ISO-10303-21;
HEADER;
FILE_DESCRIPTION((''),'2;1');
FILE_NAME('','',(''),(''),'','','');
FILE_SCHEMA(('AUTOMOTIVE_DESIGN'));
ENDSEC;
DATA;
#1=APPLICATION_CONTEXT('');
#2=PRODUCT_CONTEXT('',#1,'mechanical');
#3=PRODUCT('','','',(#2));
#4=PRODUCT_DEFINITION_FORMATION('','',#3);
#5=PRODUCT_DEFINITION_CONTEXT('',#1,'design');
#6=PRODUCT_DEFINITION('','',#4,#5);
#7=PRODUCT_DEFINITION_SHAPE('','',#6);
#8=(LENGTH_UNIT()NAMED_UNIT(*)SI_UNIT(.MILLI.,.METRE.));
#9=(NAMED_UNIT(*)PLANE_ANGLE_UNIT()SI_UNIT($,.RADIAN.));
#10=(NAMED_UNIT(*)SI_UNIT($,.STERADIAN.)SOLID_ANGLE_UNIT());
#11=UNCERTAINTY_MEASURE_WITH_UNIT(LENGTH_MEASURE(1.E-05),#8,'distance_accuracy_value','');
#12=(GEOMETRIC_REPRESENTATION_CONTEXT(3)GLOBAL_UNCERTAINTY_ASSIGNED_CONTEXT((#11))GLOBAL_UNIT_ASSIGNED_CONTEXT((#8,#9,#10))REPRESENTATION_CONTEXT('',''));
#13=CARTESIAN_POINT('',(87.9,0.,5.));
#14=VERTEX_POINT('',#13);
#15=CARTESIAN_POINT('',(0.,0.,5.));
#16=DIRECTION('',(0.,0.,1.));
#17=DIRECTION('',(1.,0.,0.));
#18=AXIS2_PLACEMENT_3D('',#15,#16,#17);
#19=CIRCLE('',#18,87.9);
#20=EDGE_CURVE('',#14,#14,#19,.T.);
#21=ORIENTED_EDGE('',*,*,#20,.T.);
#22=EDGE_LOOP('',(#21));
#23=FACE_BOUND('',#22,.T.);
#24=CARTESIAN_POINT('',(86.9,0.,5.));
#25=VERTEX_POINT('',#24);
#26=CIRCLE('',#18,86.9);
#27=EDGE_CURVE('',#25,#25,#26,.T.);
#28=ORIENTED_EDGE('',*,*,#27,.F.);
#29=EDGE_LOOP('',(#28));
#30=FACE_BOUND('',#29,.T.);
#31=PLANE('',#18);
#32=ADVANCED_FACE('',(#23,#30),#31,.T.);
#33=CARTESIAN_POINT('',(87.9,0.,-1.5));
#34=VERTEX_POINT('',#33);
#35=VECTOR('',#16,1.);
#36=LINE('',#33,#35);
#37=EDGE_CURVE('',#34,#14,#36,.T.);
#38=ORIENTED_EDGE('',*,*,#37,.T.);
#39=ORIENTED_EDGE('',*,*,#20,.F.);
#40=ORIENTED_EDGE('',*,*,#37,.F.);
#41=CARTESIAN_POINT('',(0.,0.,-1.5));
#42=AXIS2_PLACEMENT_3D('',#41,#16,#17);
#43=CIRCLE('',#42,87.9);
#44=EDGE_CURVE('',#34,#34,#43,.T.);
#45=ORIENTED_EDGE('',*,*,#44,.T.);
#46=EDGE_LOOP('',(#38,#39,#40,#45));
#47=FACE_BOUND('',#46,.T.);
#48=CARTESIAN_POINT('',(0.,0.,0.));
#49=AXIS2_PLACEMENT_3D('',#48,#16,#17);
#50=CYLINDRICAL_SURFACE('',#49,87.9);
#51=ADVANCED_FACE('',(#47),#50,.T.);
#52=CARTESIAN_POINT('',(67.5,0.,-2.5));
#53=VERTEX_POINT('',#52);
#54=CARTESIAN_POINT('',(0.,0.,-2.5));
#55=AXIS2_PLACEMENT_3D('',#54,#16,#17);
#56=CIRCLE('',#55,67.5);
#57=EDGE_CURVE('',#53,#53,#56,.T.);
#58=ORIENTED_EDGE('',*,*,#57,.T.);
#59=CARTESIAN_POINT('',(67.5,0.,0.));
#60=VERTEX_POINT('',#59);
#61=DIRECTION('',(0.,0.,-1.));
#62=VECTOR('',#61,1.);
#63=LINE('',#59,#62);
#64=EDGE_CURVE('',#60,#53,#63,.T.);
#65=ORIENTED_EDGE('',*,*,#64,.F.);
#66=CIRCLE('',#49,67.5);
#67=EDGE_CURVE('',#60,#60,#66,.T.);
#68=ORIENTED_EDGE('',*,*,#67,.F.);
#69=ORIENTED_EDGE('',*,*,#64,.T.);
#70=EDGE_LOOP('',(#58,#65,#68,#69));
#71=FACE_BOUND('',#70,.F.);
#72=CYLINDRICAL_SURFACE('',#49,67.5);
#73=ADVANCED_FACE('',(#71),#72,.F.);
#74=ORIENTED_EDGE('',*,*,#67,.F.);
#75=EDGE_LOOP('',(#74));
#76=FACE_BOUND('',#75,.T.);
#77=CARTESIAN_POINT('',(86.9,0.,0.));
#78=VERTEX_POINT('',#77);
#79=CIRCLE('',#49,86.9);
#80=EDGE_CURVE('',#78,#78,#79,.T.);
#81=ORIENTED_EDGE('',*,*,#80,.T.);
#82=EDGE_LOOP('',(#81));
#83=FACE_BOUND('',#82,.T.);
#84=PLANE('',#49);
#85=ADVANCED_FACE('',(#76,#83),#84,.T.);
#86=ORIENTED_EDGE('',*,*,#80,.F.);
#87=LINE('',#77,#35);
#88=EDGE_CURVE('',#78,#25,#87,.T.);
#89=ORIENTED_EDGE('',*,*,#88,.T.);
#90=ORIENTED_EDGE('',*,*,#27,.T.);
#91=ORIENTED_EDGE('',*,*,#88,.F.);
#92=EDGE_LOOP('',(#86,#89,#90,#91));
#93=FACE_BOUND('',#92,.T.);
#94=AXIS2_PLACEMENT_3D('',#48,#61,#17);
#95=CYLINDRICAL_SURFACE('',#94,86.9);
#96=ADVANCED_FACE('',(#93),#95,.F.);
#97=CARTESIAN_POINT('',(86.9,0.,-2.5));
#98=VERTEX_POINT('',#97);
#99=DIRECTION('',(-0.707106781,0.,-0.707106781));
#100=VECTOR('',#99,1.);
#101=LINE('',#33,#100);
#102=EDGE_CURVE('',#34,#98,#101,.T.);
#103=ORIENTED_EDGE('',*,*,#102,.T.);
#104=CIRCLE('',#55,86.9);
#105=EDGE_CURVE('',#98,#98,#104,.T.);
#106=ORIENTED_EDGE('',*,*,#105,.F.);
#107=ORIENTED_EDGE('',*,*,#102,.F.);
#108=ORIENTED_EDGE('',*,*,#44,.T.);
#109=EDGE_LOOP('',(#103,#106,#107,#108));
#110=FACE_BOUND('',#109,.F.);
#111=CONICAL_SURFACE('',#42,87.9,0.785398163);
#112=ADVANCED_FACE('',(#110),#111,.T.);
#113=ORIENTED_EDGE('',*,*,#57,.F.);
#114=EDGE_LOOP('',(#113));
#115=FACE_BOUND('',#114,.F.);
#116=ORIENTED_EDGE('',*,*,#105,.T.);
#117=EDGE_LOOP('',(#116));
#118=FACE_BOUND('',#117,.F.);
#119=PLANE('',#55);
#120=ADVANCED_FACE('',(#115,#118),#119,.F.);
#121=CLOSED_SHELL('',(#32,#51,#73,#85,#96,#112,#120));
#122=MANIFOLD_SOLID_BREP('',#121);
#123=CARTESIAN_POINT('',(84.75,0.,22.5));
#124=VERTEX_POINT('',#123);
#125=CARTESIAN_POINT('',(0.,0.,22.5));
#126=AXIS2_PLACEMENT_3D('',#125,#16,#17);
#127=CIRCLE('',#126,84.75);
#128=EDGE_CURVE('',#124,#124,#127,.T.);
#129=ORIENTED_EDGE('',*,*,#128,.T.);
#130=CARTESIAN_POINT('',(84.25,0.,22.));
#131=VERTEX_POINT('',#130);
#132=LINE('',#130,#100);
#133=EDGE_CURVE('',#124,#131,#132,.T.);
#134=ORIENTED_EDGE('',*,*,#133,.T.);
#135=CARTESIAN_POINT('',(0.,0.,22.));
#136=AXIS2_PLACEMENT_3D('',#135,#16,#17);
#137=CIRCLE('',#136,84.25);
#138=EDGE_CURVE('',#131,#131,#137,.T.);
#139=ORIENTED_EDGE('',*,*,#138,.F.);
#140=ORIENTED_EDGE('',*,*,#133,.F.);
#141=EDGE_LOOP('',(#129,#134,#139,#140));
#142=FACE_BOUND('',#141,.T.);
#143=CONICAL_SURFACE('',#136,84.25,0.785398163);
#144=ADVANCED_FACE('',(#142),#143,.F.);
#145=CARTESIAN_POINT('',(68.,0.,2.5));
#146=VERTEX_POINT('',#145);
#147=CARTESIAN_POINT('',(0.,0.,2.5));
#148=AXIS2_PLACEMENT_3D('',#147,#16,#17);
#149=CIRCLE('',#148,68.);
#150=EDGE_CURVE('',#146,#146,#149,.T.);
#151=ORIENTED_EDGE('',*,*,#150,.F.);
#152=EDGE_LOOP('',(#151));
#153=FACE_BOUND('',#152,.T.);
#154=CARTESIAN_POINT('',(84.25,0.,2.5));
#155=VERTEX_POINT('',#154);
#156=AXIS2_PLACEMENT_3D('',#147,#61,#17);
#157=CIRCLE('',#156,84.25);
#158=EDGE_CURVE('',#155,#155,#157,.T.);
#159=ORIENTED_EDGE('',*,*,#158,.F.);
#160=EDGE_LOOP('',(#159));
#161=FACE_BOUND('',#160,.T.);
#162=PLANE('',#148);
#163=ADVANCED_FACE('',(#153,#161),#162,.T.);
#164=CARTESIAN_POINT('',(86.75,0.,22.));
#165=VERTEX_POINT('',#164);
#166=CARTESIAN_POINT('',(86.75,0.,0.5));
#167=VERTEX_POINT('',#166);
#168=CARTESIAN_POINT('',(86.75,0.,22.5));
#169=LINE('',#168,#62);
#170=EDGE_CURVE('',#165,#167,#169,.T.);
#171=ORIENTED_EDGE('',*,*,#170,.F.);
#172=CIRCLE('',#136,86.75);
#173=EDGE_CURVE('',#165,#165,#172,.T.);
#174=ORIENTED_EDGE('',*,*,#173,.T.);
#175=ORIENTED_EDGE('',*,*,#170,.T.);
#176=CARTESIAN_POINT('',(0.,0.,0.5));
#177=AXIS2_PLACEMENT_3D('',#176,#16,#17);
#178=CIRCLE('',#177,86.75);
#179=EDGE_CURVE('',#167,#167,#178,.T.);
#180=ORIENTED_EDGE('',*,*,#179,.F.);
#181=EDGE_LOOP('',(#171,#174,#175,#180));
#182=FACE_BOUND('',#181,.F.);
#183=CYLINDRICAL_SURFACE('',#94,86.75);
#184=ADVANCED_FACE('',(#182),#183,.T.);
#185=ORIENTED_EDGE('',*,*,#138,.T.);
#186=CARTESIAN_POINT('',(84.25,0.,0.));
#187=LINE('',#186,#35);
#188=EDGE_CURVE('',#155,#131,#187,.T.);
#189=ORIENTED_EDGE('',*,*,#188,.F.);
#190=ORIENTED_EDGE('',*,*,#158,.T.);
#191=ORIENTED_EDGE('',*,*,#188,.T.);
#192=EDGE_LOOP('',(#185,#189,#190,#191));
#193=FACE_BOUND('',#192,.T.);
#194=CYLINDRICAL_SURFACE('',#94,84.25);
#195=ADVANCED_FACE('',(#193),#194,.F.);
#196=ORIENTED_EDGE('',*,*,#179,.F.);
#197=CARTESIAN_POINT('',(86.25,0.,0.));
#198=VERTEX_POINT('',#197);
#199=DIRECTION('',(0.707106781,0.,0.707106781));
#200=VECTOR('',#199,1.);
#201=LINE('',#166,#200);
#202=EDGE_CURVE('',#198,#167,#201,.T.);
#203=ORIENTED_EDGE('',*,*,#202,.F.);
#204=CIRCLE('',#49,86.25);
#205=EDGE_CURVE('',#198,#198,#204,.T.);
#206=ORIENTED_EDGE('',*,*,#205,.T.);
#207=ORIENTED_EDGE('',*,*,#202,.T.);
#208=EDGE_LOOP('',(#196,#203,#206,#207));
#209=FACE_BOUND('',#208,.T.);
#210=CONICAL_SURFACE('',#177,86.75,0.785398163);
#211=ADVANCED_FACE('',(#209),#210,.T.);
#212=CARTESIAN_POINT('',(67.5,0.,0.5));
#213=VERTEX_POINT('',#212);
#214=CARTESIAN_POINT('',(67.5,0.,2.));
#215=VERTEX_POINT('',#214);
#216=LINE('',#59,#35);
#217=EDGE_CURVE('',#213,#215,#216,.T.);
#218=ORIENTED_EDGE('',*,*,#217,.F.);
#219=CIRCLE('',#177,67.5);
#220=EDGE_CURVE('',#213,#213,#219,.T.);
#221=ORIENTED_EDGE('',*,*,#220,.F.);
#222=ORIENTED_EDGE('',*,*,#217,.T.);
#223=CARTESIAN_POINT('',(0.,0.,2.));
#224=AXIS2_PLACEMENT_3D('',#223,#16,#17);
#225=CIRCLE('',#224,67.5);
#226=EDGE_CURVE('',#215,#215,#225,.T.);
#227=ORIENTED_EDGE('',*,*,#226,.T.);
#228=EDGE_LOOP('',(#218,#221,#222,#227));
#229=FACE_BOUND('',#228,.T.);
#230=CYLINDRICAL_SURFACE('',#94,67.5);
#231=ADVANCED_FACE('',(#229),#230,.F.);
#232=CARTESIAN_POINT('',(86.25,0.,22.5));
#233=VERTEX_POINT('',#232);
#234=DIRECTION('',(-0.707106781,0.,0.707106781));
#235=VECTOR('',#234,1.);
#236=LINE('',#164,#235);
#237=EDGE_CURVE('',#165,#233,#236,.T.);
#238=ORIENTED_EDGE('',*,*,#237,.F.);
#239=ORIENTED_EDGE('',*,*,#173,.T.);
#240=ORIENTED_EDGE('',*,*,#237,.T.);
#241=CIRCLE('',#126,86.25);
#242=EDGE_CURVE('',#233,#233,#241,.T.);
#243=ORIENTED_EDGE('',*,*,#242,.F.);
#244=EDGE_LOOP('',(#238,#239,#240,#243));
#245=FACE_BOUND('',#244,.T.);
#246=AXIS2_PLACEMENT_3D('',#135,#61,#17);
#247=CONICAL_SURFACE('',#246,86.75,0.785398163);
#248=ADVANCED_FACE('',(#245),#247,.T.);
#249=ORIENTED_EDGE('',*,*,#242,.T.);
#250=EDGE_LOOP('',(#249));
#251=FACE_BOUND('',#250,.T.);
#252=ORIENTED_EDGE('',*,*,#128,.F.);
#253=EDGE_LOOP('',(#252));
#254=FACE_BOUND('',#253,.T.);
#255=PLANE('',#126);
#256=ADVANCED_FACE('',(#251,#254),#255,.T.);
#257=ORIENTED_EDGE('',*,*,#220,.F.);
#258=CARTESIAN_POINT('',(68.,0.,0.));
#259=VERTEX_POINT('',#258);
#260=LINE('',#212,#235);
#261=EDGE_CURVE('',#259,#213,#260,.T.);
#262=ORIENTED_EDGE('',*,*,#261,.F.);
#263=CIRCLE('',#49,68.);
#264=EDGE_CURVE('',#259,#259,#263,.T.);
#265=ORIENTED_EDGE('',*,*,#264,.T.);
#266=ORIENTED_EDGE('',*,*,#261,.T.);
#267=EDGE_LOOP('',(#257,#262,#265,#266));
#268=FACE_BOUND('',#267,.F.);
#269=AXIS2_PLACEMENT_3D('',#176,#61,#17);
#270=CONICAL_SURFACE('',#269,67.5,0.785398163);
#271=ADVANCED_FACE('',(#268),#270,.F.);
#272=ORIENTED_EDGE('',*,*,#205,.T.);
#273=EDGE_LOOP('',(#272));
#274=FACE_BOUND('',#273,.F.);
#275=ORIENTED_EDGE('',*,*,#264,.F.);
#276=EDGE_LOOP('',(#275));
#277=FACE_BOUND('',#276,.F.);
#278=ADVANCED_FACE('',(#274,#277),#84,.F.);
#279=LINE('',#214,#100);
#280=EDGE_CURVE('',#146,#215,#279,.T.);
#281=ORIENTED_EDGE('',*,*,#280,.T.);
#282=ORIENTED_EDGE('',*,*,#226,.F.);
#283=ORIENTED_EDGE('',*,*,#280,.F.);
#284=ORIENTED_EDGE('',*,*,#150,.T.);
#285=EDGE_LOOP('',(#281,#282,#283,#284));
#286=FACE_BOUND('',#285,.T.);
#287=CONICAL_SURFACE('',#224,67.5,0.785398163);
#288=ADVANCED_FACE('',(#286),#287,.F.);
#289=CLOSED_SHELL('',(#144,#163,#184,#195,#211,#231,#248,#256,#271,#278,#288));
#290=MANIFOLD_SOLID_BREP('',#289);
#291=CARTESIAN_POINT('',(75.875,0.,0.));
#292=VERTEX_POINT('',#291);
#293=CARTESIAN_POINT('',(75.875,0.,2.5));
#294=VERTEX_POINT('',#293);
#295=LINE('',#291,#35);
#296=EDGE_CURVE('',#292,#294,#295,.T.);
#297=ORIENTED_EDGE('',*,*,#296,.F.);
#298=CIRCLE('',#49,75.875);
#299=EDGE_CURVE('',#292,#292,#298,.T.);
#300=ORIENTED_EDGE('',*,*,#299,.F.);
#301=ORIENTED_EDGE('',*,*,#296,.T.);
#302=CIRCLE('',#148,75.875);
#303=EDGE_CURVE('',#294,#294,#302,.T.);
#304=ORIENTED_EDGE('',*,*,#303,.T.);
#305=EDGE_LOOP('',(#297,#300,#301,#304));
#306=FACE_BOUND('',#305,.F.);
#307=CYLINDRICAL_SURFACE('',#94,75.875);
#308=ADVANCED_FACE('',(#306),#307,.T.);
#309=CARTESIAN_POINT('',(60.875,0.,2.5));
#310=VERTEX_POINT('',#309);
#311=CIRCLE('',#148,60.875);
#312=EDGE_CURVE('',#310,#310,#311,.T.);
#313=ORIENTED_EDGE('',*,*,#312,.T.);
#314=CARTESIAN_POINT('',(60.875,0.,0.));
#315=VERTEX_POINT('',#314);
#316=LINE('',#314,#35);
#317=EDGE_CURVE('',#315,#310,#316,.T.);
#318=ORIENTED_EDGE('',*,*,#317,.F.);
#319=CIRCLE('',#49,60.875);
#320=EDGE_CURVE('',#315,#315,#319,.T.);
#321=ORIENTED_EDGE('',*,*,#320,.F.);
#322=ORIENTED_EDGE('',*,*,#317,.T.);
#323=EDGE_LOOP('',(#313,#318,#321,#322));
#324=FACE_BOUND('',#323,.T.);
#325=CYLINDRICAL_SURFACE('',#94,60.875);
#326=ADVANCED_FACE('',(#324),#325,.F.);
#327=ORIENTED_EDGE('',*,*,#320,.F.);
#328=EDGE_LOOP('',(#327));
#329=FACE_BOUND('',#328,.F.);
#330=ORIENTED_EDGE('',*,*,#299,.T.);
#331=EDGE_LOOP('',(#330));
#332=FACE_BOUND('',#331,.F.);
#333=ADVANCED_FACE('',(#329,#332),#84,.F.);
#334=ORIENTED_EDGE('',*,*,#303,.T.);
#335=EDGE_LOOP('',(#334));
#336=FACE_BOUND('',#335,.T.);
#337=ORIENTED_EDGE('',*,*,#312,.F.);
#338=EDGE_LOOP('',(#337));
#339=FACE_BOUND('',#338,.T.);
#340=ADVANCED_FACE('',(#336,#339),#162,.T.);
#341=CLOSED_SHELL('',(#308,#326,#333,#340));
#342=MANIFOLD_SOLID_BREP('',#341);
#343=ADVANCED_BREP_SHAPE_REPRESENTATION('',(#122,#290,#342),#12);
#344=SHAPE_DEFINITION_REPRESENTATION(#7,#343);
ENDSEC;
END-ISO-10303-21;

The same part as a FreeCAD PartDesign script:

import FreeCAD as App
import Part
import Sketcher

V = App.Vector


def edges_at(feature, points):
    """Names of the edges that pass closest to the given points."""
    edges = feature.Shape.Edges
    near = lambda p: min(range(len(edges)), key=lambda i: edges[i].distToShape(Part.Vertex(*p))[0])
    return sorted({f"Edge{near(p) + 1}" for p in points})

doc = App.newDocument("Part")
params = doc.addObject("Spreadsheet::Sheet", "Params")
for row, (alias, value) in enumerate([
    ("sketch1_diameter", "135 mm"),
    ("sketch1_diameter2", "173.5 mm"),
    ("pad1_length", "2.5 mm"),
    ("sketch2_diameter", "173.5 mm"),
    ("sketch2_diameter2", "168.5 mm"),
    ("pad2_length", "22.5 mm"),
    ("chamfer_size", "0.5 mm"),
    ("chamfer2_size", "0.5 mm"),
    ("chamfer3_size", "0.5 mm"),
    ("chamfer4_size", "0.5 mm"),
    ("chamfer5_size", "0.5 mm"),
    ("sketch3_diameter", "135 mm"),
    ("sketch3_diameter2", "175.8 mm"),
    ("pad3_length", "2.5 mm"),
    ("sketch4_diameter", "175.8 mm"),
    ("sketch4_diameter2", "173.8 mm"),
    ("pad4_length", "5 mm"),
    ("chamfer6_size", "1 mm"),
    ("sketch5_diameter", "151.75 mm"),
    ("sketch5_diameter2", "121.75 mm"),
    ("pad5_length", "2.5 mm"),
], start=1):
    params.set(f"A{row}", alias)
    params.set(f"B{row}", "=" + value)
    params.setAlias(f"B{row}", alias)

body = doc.addObject("PartDesign::Body", "Body")

# Sketch on XY plane
sketch1 = body.newObject("Sketcher::SketchObject", "Sketch")
sketch1.AttachmentSupport = (doc.getObject("XY_Plane"), [""])
sketch1.MapMode = "FlatFace"
sketch1.addGeometry([
    Part.Circle(V(0, 0, 0), V(0, 0, 1), 86.75),
    Part.Circle(V(0, 0, 0), V(0, 0, 1), 67.5),
], False)
sketch1.addConstraint([
    Sketcher.Constraint("Coincident", 0, 3, -1, 1),
    Sketcher.Constraint("Coincident", 1, 3, -1, 1),
    Sketcher.Constraint("Diameter", 1, 135.0),
    Sketcher.Constraint("Diameter", 0, 173.5),
])
sketch1.setExpression("Constraints[2]", "Params.sketch1_diameter")
sketch1.setExpression("Constraints[3]", "Params.sketch1_diameter2")
pad1 = body.newObject("PartDesign::Pad", "Pad")
pad1.Profile = sketch1
pad1.setExpression("Length", "Params.pad1_length")

# Sketch on XY plane
sketch2 = body.newObject("Sketcher::SketchObject", "Sketch001")
sketch2.AttachmentSupport = (doc.getObject("XY_Plane"), [""])
sketch2.MapMode = "FlatFace"
sketch2.addGeometry([
    Part.Circle(V(0, 0, 0), V(0, 0, 1), 86.75),
    Part.Circle(V(0, 0, 0), V(0, 0, 1), 84.25),
], False)
sketch2.addConstraint([
    Sketcher.Constraint("Coincident", 0, 3, -1, 1),
    Sketcher.Constraint("Coincident", 1, 3, -1, 1),
    Sketcher.Constraint("Diameter", 0, 173.5),
    Sketcher.Constraint("Diameter", 1, 168.5),
])
sketch2.setExpression("Constraints[2]", "Params.sketch2_diameter")
sketch2.setExpression("Constraints[3]", "Params.sketch2_diameter2")
pad2 = body.newObject("PartDesign::Pad", "Pad001")
pad2.Profile = sketch2
pad2.setExpression("Length", "Params.pad2_length")
doc.recompute()

chamfer = body.newObject("PartDesign::Chamfer", "Chamfer")
chamfer.Base = (pad2, edges_at(pad2, [(-67.5, 0, 2.5)]))
chamfer.setExpression("Size", "Params.chamfer_size")
doc.recompute()

chamfer2 = body.newObject("PartDesign::Chamfer", "Chamfer001")
chamfer2.Base = (chamfer, edges_at(chamfer, [(-86.75, 0, 0)]))
chamfer2.setExpression("Size", "Params.chamfer2_size")
doc.recompute()

chamfer3 = body.newObject("PartDesign::Chamfer", "Chamfer002")
chamfer3.Base = (chamfer2, edges_at(chamfer2, [(-86.75, 0, 22.5)]))
chamfer3.setExpression("Size", "Params.chamfer3_size")
doc.recompute()

chamfer4 = body.newObject("PartDesign::Chamfer", "Chamfer003")
chamfer4.Base = (chamfer3, edges_at(chamfer3, [(-84.25, 0, 22.5)]))
chamfer4.setExpression("Size", "Params.chamfer4_size")
doc.recompute()

chamfer5 = body.newObject("PartDesign::Chamfer", "Chamfer004")
chamfer5.Base = (chamfer4, edges_at(chamfer4, [(-67.5, 0, 0)]))
chamfer5.setExpression("Size", "Params.chamfer5_size")
body2 = doc.addObject("PartDesign::Body", "Body001")

# Sketch on XY plane
sketch3 = body2.newObject("Sketcher::SketchObject", "Sketch002")
sketch3.AttachmentSupport = (doc.getObject("XY_Plane001"), [""])
sketch3.MapMode = "FlatFace"
sketch3.addGeometry([
    Part.Circle(V(0, 0, 0), V(0, 0, 1), 87.9),
    Part.Circle(V(0, 0, 0), V(0, 0, 1), 67.5),
], False)
sketch3.addConstraint([
    Sketcher.Constraint("Coincident", 0, 3, -1, 1),
    Sketcher.Constraint("Coincident", 1, 3, -1, 1),
    Sketcher.Constraint("Diameter", 1, 135.0),
    Sketcher.Constraint("Diameter", 0, 175.8),
])
sketch3.setExpression("Constraints[2]", "Params.sketch3_diameter")
sketch3.setExpression("Constraints[3]", "Params.sketch3_diameter2")
pad3 = body2.newObject("PartDesign::Pad", "Pad002")
pad3.Profile = sketch3
pad3.setExpression("Length", "Params.pad3_length")
pad3.Reversed = True

# Sketch on XY plane
sketch4 = body2.newObject("Sketcher::SketchObject", "Sketch003")
sketch4.AttachmentSupport = (doc.getObject("XY_Plane001"), [""])
sketch4.MapMode = "FlatFace"
sketch4.addGeometry([
    Part.Circle(V(0, 0, 0), V(0, 0, 1), 87.9),
    Part.Circle(V(0, 0, 0), V(0, 0, 1), 86.9),
], False)
sketch4.addConstraint([
    Sketcher.Constraint("Coincident", 0, 3, -1, 1),
    Sketcher.Constraint("Coincident", 1, 3, -1, 1),
    Sketcher.Constraint("Diameter", 0, 175.8),
    Sketcher.Constraint("Diameter", 1, 173.8),
])
sketch4.setExpression("Constraints[2]", "Params.sketch4_diameter")
sketch4.setExpression("Constraints[3]", "Params.sketch4_diameter2")
pad4 = body2.newObject("PartDesign::Pad", "Pad003")
pad4.Profile = sketch4
pad4.setExpression("Length", "Params.pad4_length")
doc.recompute()

chamfer6 = body2.newObject("PartDesign::Chamfer", "Chamfer005")
chamfer6.Base = (pad4, edges_at(pad4, [(-87.9, 0, -2.5)]))
chamfer6.setExpression("Size", "Params.chamfer6_size")
body3 = doc.addObject("PartDesign::Body", "Body002")

# Sketch on XY plane
sketch5 = body3.newObject("Sketcher::SketchObject", "Sketch004")
sketch5.AttachmentSupport = (doc.getObject("XY_Plane002"), [""])
sketch5.MapMode = "FlatFace"
sketch5.addGeometry([
    Part.Circle(V(0, 0, 0), V(0, 0, 1), 75.875),
    Part.Circle(V(0, 0, 0), V(0, 0, 1), 60.875),
], False)
sketch5.addConstraint([
    Sketcher.Constraint("Coincident", 0, 3, -1, 1),
    Sketcher.Constraint("Coincident", 1, 3, -1, 1),
    Sketcher.Constraint("Diameter", 0, 151.75),
    Sketcher.Constraint("Diameter", 1, 121.75),
])
sketch5.setExpression("Constraints[2]", "Params.sketch5_diameter")
sketch5.setExpression("Constraints[3]", "Params.sketch5_diameter2")
pad5 = body3.newObject("PartDesign::Pad", "Pad004")
pad5.Profile = sketch5
pad5.setExpression("Length", "Params.pad5_length")

doc.recompute()
